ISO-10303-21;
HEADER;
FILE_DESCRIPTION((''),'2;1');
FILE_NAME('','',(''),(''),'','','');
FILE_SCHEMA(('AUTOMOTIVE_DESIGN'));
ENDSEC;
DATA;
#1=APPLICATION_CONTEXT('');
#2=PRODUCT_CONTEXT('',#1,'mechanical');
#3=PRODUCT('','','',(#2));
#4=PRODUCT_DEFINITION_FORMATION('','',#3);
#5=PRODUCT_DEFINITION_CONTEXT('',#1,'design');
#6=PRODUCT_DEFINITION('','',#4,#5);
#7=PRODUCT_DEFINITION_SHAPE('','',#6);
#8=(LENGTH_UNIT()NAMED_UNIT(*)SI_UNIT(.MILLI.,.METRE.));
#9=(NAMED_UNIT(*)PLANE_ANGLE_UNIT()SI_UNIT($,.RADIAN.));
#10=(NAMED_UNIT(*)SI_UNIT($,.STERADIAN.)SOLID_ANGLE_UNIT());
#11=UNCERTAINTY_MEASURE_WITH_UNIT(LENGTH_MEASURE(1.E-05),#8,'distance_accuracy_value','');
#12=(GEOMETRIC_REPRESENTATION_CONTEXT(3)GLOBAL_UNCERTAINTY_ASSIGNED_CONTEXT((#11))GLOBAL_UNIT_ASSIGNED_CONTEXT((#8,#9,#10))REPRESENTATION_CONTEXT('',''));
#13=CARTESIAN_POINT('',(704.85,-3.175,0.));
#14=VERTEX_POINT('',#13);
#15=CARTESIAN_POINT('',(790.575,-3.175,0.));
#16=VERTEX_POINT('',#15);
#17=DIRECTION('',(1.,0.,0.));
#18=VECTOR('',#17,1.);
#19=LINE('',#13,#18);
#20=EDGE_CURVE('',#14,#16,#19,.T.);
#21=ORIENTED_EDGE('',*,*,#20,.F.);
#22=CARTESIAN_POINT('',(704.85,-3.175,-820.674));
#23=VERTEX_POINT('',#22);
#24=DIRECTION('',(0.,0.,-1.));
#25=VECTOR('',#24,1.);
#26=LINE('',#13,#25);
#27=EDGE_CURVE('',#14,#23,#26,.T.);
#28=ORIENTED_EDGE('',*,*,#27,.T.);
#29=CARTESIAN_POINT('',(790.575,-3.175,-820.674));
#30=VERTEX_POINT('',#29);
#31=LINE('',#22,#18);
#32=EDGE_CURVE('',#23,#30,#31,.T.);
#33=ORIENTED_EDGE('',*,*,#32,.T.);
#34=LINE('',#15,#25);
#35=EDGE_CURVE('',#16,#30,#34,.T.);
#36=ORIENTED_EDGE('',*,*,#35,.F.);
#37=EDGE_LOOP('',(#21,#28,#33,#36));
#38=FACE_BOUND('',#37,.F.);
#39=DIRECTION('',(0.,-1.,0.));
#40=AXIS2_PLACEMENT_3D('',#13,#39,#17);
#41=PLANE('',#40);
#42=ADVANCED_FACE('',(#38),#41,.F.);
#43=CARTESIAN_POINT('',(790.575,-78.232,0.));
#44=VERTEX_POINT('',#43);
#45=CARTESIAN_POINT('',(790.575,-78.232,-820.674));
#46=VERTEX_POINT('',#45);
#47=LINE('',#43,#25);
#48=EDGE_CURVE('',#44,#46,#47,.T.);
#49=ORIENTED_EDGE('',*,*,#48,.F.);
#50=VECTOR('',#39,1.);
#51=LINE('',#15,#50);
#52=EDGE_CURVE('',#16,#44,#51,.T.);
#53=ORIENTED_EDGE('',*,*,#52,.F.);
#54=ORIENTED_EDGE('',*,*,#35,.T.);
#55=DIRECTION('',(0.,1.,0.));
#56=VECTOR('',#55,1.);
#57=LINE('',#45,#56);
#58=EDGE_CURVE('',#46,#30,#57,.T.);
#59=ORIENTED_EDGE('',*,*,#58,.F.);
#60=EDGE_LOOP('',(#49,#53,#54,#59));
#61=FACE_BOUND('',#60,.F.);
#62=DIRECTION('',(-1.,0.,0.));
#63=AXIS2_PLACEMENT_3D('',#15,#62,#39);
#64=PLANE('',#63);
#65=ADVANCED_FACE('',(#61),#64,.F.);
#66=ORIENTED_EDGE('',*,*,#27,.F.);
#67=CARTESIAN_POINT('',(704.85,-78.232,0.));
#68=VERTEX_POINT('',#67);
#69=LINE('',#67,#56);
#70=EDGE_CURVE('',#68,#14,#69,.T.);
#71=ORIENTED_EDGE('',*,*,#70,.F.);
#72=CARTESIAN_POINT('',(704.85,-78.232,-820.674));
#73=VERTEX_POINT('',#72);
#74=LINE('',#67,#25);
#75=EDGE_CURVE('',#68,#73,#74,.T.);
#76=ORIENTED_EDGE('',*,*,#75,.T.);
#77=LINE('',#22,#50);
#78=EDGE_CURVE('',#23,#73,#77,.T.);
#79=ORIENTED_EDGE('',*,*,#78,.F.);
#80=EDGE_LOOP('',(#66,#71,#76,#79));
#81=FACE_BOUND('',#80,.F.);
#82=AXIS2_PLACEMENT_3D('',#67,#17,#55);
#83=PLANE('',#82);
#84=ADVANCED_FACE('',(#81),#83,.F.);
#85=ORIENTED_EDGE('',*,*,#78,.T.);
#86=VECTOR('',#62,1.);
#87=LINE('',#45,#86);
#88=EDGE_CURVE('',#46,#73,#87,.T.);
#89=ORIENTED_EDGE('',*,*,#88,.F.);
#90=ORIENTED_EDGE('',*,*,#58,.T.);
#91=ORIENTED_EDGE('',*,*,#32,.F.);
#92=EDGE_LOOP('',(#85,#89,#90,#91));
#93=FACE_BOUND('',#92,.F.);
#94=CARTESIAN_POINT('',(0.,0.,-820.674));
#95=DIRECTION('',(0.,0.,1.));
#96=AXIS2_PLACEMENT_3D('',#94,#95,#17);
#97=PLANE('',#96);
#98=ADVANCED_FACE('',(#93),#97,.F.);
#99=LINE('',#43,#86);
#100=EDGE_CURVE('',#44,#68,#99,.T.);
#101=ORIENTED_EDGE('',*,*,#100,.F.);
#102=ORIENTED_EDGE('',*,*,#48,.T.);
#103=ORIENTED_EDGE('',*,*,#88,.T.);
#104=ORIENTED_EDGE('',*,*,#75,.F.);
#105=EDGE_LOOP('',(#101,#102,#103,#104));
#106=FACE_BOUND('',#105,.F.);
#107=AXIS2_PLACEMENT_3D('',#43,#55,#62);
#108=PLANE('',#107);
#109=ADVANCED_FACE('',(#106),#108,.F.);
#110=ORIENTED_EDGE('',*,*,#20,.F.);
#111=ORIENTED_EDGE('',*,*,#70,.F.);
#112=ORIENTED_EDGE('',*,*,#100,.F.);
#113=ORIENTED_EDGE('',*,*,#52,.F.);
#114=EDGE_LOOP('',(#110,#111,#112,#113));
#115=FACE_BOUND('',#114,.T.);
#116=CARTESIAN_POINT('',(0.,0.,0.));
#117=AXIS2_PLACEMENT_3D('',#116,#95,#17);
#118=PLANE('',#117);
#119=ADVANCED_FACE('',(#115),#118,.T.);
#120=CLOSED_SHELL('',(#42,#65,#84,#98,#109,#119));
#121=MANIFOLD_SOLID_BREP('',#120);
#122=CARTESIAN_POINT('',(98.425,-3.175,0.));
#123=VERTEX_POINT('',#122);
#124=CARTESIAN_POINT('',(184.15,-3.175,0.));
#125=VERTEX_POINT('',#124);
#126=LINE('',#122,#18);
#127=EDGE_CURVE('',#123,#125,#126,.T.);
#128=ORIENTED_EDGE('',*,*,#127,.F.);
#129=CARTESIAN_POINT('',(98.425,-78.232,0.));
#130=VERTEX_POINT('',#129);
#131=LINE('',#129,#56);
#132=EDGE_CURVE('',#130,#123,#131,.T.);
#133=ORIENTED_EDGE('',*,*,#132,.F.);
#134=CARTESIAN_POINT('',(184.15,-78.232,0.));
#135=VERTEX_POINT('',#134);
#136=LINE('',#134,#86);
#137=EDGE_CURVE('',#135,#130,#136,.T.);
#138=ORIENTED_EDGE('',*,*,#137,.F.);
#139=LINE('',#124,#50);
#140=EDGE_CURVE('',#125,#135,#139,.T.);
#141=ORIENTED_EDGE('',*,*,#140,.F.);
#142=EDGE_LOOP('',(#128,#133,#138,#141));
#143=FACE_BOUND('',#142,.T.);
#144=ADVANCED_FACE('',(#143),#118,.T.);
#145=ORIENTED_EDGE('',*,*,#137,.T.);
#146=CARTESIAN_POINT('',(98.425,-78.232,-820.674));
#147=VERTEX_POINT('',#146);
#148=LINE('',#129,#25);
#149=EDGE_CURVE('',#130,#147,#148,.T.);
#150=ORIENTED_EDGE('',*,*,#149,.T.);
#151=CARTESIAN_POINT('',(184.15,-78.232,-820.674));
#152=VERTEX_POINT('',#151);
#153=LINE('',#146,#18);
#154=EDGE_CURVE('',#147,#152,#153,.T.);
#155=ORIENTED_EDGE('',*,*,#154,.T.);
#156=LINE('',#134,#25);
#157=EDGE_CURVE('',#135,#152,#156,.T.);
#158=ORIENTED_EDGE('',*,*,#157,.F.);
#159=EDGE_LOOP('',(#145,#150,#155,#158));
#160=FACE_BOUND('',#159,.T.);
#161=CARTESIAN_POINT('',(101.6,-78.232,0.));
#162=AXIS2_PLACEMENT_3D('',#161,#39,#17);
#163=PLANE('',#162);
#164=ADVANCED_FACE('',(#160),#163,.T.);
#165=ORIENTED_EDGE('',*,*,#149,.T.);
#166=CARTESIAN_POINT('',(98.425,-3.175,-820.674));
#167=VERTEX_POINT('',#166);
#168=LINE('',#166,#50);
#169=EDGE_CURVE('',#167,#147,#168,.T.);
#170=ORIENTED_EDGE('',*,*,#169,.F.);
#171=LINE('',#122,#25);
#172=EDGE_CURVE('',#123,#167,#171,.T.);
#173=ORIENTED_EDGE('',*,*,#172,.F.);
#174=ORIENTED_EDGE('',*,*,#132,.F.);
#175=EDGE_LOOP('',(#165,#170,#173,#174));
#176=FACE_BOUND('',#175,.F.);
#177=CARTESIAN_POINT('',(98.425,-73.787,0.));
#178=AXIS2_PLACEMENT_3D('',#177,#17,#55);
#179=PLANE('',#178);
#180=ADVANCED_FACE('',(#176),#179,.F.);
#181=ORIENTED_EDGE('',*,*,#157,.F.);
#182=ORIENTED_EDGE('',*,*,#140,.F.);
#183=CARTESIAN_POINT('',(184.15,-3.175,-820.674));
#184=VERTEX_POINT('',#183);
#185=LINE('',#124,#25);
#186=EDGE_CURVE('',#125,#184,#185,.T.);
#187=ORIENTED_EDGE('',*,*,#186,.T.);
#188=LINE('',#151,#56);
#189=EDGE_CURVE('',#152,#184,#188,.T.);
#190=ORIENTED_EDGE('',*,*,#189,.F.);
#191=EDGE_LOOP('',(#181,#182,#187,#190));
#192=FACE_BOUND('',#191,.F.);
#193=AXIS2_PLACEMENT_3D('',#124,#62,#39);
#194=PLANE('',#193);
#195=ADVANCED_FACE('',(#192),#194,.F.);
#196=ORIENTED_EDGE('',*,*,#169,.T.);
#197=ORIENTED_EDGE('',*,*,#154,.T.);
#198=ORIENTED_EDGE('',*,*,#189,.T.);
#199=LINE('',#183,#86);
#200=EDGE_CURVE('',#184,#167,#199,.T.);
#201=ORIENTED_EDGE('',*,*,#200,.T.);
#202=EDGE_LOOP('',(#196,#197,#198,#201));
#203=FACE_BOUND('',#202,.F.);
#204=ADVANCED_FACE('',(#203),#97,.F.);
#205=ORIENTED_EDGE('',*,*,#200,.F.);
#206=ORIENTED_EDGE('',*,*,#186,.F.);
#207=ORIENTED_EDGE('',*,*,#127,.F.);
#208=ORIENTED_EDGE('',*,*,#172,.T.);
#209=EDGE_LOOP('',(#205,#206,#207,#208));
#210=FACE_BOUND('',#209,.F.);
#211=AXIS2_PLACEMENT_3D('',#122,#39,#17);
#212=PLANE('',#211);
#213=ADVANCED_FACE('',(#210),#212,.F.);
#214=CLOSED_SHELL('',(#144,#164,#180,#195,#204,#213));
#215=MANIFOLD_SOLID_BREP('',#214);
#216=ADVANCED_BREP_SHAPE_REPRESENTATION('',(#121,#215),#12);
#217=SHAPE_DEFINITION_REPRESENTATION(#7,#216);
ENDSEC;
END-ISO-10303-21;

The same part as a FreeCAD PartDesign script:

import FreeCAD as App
import Part
import Sketcher
Q = App.Units.Quantity


def add_polygon(sketch, points):
    """Adds a closed chain of lines whose ends are joined by coincident constraints."""
    first, n = sketch.GeometryCount, len(points)
    for a, b in zip(points, points[1:] + points[:1]):
        sketch.addGeometry(Part.LineSegment(App.Vector(*a, 0), App.Vector(*b, 0)), False)
    for i in range(n):
        sketch.addConstraint(Sketcher.Constraint("Coincident", first + i, 2, first + (i + 1) % n, 1))

doc = App.newDocument("Part")
body = doc.addObject("PartDesign::Body", "Body")
body.AllowCompound = True

# Sketch on XY plane
sketch1 = body.newObject("Sketcher::SketchObject", "Sketch")
sketch1.AttachmentSupport = (doc.getObject("XY_Plane"), [""])
sketch1.MapMode = "FlatFace"
add_polygon(sketch1, [(98, -3), (98, -78), (184, -78), (184, -3)])  # lines 0-3
add_polygon(sketch1, [(791, -3), (705, -3), (705, -78), (791, -78)])  # lines 4-7
sketch1.addConstraint([
    Sketcher.Constraint("Vertical", 0),
    Sketcher.Constraint("Horizontal", 1),
    Sketcher.Constraint("Vertical", 2),
    Sketcher.Constraint("Horizontal", 3),
    Sketcher.Constraint("Horizontal", 4),
    Sketcher.Constraint("Vertical", 5),
    Sketcher.Constraint("Horizontal", 6),
    Sketcher.Constraint("Vertical", 7),
    Sketcher.Constraint("Horizontal", 3, 2, 4, 2),
    Sketcher.Constraint("Horizontal", 1, 2, 5, 2),
    Sketcher.Constraint("Equal", 3, 4),
    Sketcher.Constraint("DistanceX", 2, 2, 4, 2, Q("20.5 in")),
    Sketcher.Constraint("DistanceX", 1, 1, 1, 2, Q("3.375 in")),
    Sketcher.Constraint("DistanceY", 0, 2, 0, 1, Q("2.955 in")),
    Sketcher.Constraint("DistanceY", 0, 2, -1, 1, Q("3.08 in")),
    Sketcher.Constraint("DistanceX", -1, 1, 1, 2, Q("7.25 in")),
])
pad1 = body.newObject("PartDesign::Pad", "Pad")
pad1.Profile = sketch1
pad1.Length = Q("32.31 in")
pad1.Reversed = True

doc.recompute()
